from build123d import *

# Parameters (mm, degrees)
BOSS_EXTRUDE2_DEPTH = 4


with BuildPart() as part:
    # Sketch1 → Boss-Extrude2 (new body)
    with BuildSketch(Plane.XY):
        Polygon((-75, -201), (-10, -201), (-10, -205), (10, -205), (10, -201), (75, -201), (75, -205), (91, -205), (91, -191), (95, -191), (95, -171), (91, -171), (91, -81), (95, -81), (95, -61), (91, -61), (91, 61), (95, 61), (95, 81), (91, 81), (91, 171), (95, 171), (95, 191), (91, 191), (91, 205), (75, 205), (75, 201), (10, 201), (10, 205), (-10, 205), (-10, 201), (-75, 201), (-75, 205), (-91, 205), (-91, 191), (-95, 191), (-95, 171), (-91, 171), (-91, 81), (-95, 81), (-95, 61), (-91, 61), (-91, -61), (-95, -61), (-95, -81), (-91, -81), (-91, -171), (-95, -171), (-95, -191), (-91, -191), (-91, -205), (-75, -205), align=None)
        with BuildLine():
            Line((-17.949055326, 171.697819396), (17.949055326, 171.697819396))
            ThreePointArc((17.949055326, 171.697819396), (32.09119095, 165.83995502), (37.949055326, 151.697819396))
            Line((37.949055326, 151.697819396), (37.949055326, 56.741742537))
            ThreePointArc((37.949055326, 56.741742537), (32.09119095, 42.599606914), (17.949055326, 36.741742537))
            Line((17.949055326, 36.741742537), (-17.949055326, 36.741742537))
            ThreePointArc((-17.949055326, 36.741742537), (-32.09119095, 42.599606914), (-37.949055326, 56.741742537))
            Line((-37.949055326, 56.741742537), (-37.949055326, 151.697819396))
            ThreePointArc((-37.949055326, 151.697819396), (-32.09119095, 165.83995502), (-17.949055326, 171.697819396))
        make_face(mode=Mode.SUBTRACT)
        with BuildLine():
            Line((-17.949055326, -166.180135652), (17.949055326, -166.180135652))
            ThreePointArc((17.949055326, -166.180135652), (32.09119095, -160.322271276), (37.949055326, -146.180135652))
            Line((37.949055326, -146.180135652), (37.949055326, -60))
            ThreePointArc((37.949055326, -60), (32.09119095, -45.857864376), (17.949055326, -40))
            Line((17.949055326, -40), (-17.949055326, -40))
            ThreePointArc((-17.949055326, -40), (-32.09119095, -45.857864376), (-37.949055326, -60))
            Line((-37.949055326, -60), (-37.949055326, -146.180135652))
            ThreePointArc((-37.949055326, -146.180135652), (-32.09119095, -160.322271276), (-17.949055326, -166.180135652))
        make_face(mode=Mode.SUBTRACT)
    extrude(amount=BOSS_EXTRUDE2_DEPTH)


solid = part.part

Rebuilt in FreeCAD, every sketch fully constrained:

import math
import FreeCAD as App
import Part
import Sketcher
from FreeCAD import Vector


def add_polygon(sketch, points):
    """Adds a closed chain of lines whose ends are joined by coincident constraints."""
    first, n = sketch.GeometryCount, len(points)
    for a, b in zip(points, points[1:] + points[:1]):
        sketch.addGeometry(Part.LineSegment(App.Vector(*a, 0), App.Vector(*b, 0)), False)
    for i in range(n):
        sketch.addConstraint(Sketcher.Constraint("Coincident", first + i, 2, first + (i + 1) % n, 1))

doc = App.newDocument("Part")
body = doc.addObject("PartDesign::Body", "Body")

# Sketch on XY plane
sketch1 = body.newObject("Sketcher::SketchObject", "Sketch")
sketch1.AttachmentSupport = (doc.getObject("XY_Plane"), [""])
sketch1.MapMode = "FlatFace"
add_polygon(sketch1, [(-75, -201), (-10, -201), (-10, -205), (10, -205), (10, -201), (75, -201), (75, -205), (91, -205), (91, -191), (95, -191), (95, -171), (91, -171), (91, -81), (95, -81), (95, -61), (91, -61), (91, 61), (95, 61), (95, 81), (91, 81), (91, 171), (95, 171), (95, 191), (91, 191), (91, 205), (75, 205), (75, 201), (10, 201), (10, 205), (-10, 205), (-10, 201), (-75, 201), (-75, 205), (-91, 205), (-91, 191), (-95, 191), (-95, 171), (-91, 171), (-91, 81), (-95, 81), (-95, 61), (-91, 61), (-91, -61), (-95, -61), (-95, -81), (-91, -81), (-91, -171), (-95, -171), (-95, -191), (-91, -191), (-91, -205), (-75, -205)])  # lines 0-51
sketch1.addGeometry(Part.LineSegment(Vector(17.949055, -166.180136, 0), Vector(-17.949055, -166.180136, 0)), False)  # 52
sketch1.addGeometry(Part.ArcOfCircle(Part.Circle(Vector(-17.949055, -146.180136, 0), Vector(0, 0, 1), 20), math.radians(180), math.radians(270)), False)  # 53
sketch1.addGeometry(Part.LineSegment(Vector(-37.949055, -146.180136, 0), Vector(-37.949055, -60, 0)), False)  # 54
sketch1.addGeometry(Part.ArcOfCircle(Part.Circle(Vector(-17.949055, -60, 0), Vector(0, 0, 1), 20), math.radians(90), math.radians(180)), False)  # 55
sketch1.addGeometry(Part.LineSegment(Vector(-17.949055, -40, 0), Vector(17.949055, -40, 0)), False)  # 56
sketch1.addGeometry(Part.ArcOfCircle(Part.Circle(Vector(17.949055, -60, 0), Vector(0, 0, 1), 20), math.radians(0), math.radians(90)), False)  # 57
sketch1.addGeometry(Part.LineSegment(Vector(37.949055, -60, 0), Vector(37.949055, -146.180136, 0)), False)  # 58
sketch1.addGeometry(Part.ArcOfCircle(Part.Circle(Vector(17.949055, -146.180136, 0), Vector(0, 0, 1), 20), math.radians(-90), math.radians(0)), False)  # 59
sketch1.addGeometry(Part.ArcOfCircle(Part.Circle(Vector(-17.949055, 151.697819, 0), Vector(0, 0, 1), 20), math.radians(90), math.radians(180)), False)  # 60
sketch1.addGeometry(Part.LineSegment(Vector(-17.949055, 171.697819, 0), Vector(17.949055, 171.697819, 0)), False)  # 61
sketch1.addGeometry(Part.ArcOfCircle(Part.Circle(Vector(17.949055, 151.697819, 0), Vector(0, 0, 1), 20), math.radians(0), math.radians(90)), False)  # 62
sketch1.addGeometry(Part.LineSegment(Vector(37.949055, 151.697819, 0), Vector(37.949055, 56.741743, 0)), False)  # 63
sketch1.addGeometry(Part.ArcOfCircle(Part.Circle(Vector(17.949055, 56.741743, 0), Vector(0, 0, 1), 20), math.radians(-90), math.radians(0)), False)  # 64
sketch1.addGeometry(Part.LineSegment(Vector(17.949055, 36.741743, 0), Vector(-17.949055, 36.741743, 0)), False)  # 65
sketch1.addGeometry(Part.ArcOfCircle(Part.Circle(Vector(-17.949055, 56.741743, 0), Vector(0, 0, 1), 20), math.radians(-180), math.radians(-90)), False)  # 66
sketch1.addGeometry(Part.LineSegment(Vector(-37.949055, 56.741743, 0), Vector(-37.949055, 151.697819, 0)), False)  # 67
sketch1.addConstraint(Sketcher.Constraint("Tangent", 52, 2, 53, 2))
sketch1.addConstraint(Sketcher.Constraint("Tangent", 53, 1, 54, 1))
sketch1.addConstraint(Sketcher.Constraint("Tangent", 54, 2, 55, 2))
sketch1.addConstraint(Sketcher.Constraint("Tangent", 55, 1, 56, 1))
sketch1.addConstraint(Sketcher.Constraint("Tangent", 56, 2, 57, 2))
sketch1.addConstraint(Sketcher.Constraint("Tangent", 57, 1, 58, 1))
sketch1.addConstraint(Sketcher.Constraint("Tangent", 58, 2, 59, 2))
sketch1.addConstraint(Sketcher.Constraint("Tangent", 59, 1, 52, 1))
sketch1.addConstraint(Sketcher.Constraint("Tangent", 60, 1, 61, 1))
sketch1.addConstraint(Sketcher.Constraint("Tangent", 61, 2, 62, 2))
sketch1.addConstraint(Sketcher.Constraint("Tangent", 62, 1, 63, 1))
sketch1.addConstraint(Sketcher.Constraint("Tangent", 63, 2, 64, 2))
sketch1.addConstraint(Sketcher.Constraint("Tangent", 64, 1, 65, 1))
sketch1.addConstraint(Sketcher.Constraint("Tangent", 65, 2, 66, 2))
sketch1.addConstraint(Sketcher.Constraint("Tangent", 66, 1, 67, 1))
sketch1.addConstraint(Sketcher.Constraint("Tangent", 67, 2, 60, 2))
sketch1.addConstraint(Sketcher.Constraint("Horizontal", 0))
sketch1.addConstraint(Sketcher.Constraint("Vertical", 1))
sketch1.addConstraint(Sketcher.Constraint("Horizontal", 2))
sketch1.addConstraint(Sketcher.Constraint("Vertical", 3))
sketch1.addConstraint(Sketcher.Constraint("Horizontal", 4))
sketch1.addConstraint(Sketcher.Constraint("Vertical", 5))
sketch1.addConstraint(Sketcher.Constraint("Horizontal", 6))
sketch1.addConstraint(Sketcher.Constraint("Vertical", 7))
sketch1.addConstraint(Sketcher.Constraint("Horizontal", 8))
sketch1.addConstraint(Sketcher.Constraint("Vertical", 9))
sketch1.addConstraint(Sketcher.Constraint("Horizontal", 10))
sketch1.addConstraint(Sketcher.Constraint("Vertical", 11))
sketch1.addConstraint(Sketcher.Constraint("Horizontal", 12))
sketch1.addConstraint(Sketcher.Constraint("Vertical", 13))
sketch1.addConstraint(Sketcher.Constraint("Horizontal", 14))
sketch1.addConstraint(Sketcher.Constraint("Vertical", 15))
sketch1.addConstraint(Sketcher.Constraint("Horizontal", 16))
sketch1.addConstraint(Sketcher.Constraint("Vertical", 17))
sketch1.addConstraint(Sketcher.Constraint("Horizontal", 18))
sketch1.addConstraint(Sketcher.Constraint("Vertical", 19))
sketch1.addConstraint(Sketcher.Constraint("Horizontal", 20))
sketch1.addConstraint(Sketcher.Constraint("Vertical", 21))
sketch1.addConstraint(Sketcher.Constraint("Horizontal", 22))
sketch1.addConstraint(Sketcher.Constraint("Vertical", 23))
sketch1.addConstraint(Sketcher.Constraint("Horizontal", 24))
sketch1.addConstraint(Sketcher.Constraint("Vertical", 25))
sketch1.addConstraint(Sketcher.Constraint("Horizontal", 26))
sketch1.addConstraint(Sketcher.Constraint("Vertical", 27))
sketch1.addConstraint(Sketcher.Constraint("Horizontal", 28))
sketch1.addConstraint(Sketcher.Constraint("Vertical", 29))
sketch1.addConstraint(Sketcher.Constraint("Horizontal", 30))
sketch1.addConstraint(Sketcher.Constraint("Vertical", 31))
sketch1.addConstraint(Sketcher.Constraint("Horizontal", 32))
sketch1.addConstraint(Sketcher.Constraint("Vertical", 33))
sketch1.addConstraint(Sketcher.Constraint("Horizontal", 34))
sketch1.addConstraint(Sketcher.Constraint("Vertical", 35))
sketch1.addConstraint(Sketcher.Constraint("Horizontal", 36))
sketch1.addConstraint(Sketcher.Constraint("Vertical", 37))
sketch1.addConstraint(Sketcher.Constraint("Horizontal", 38))
sketch1.addConstraint(Sketcher.Constraint("Vertical", 39))
sketch1.addConstraint(Sketcher.Constraint("Horizontal", 40))
sketch1.addConstraint(Sketcher.Constraint("Vertical", 41))
sketch1.addConstraint(Sketcher.Constraint("Horizontal", 42))
sketch1.addConstraint(Sketcher.Constraint("Vertical", 43))
sketch1.addConstraint(Sketcher.Constraint("Horizontal", 44))
sketch1.addConstraint(Sketcher.Constraint("Vertical", 45))
sketch1.addConstraint(Sketcher.Constraint("Horizontal", 46))
sketch1.addConstraint(Sketcher.Constraint("Vertical", 47))
sketch1.addConstraint(Sketcher.Constraint("Horizontal", 48))
sketch1.addConstraint(Sketcher.Constraint("Vertical", 49))
sketch1.addConstraint(Sketcher.Constraint("Horizontal", 50))
sketch1.addConstraint(Sketcher.Constraint("Vertical", 51))
sketch1.addConstraint(Sketcher.Constraint("Horizontal", 52))
sketch1.addConstraint(Sketcher.Constraint("Vertical", 54))
sketch1.addConstraint(Sketcher.Constraint("Horizontal", 56))
sketch1.addConstraint(Sketcher.Constraint("Vertical", 58))
sketch1.addConstraint(Sketcher.Constraint("Horizontal", 61))
sketch1.addConstraint(Sketcher.Constraint("Vertical", 63))
sketch1.addConstraint(Sketcher.Constraint("Horizontal", 65))
sketch1.addConstraint(Sketcher.Constraint("Vertical", 67))
sketch1.addConstraint(Sketcher.Constraint("Equal", 53, 55))
sketch1.addConstraint(Sketcher.Constraint("Equal", 55, 57))
sketch1.addConstraint(Sketcher.Constraint("Equal", 57, 59))
sketch1.addConstraint(Sketcher.Constraint("Equal", 59, 60))
sketch1.addConstraint(Sketcher.Constraint("Equal", 60, 62))
sketch1.addConstraint(Sketcher.Constraint("Equal", 62, 64))
sketch1.addConstraint(Sketcher.Constraint("Equal", 64, 66))
sketch1.addConstraint(Sketcher.Constraint("Symmetric", 0, 2, 26, 2, -1, 1))
sketch1.addConstraint(Sketcher.Constraint("Symmetric", 2, 2, 28, 2, -1, 1))
sketch1.addConstraint(Sketcher.Constraint("Symmetric", 4, 2, 30, 2, -1, 1))
sketch1.addConstraint(Sketcher.Constraint("Symmetric", 6, 2, 32, 2, -1, 1))
sketch1.addConstraint(Sketcher.Constraint("Symmetric", 8, 2, 34, 2, -1, 1))
sketch1.addConstraint(Sketcher.Constraint("Symmetric", 10, 2, 36, 2, -1, 1))
sketch1.addConstraint(Sketcher.Constraint("Symmetric", 12, 2, 38, 2, -1, 1))
sketch1.addConstraint(Sketcher.Constraint("Symmetric", 14, 2, 40, 2, -1, 1))
sketch1.addConstraint(Sketcher.Constraint("Symmetric", 16, 2, 42, 2, -1, 1))
sketch1.addConstraint(Sketcher.Constraint("Symmetric", 18, 2, 44, 2, -1, 1))
sketch1.addConstraint(Sketcher.Constraint("Symmetric", 20, 2, 46, 2, -1, 1))
sketch1.addConstraint(Sketcher.Constraint("Symmetric", 22, 2, 48, 2, -1, 1))
sketch1.addConstraint(Sketcher.Constraint("Symmetric", 24, 2, 50, 2, -1, 1))
sketch1.addConstraint(Sketcher.Constraint("Symmetric", 0, 2, 3, 2, -2))
sketch1.addConstraint(Sketcher.Constraint("Symmetric", 24, 2, 31, 2, -2))
sketch1.addConstraint(Sketcher.Constraint("Symmetric", 22, 2, 33, 2, -2))
sketch1.addConstraint(Sketcher.Constraint("Symmetric", 20, 2, 35, 2, -2))
sketch1.addConstraint(Sketcher.Constraint("Symmetric", 18, 2, 37, 2, -2))
sketch1.addConstraint(Sketcher.Constraint("Symmetric", 16, 2, 39, 2, -2))
sketch1.addConstraint(Sketcher.Constraint("Horizontal", 2, 2, 5, 2))
sketch1.addConstraint(Sketcher.Constraint("Vertical", 55, 3, 60, 3))
sketch1.addConstraint(Sketcher.Constraint("Vertical", 59, 3, 62, 3))
sketch1.addConstraint(Sketcher.Constraint("Vertical", 7, 2, 10, 2))
sketch1.addConstraint(Sketcher.Constraint("Vertical", 9, 2, 12, 2))
sketch1.addConstraint(Sketcher.Constraint("Vertical", 11, 2, 14, 2))
sketch1.addConstraint(Sketcher.Constraint("Equal", 48, 1))
sketch1.addConstraint(Sketcher.Constraint("Equal", 28, 9))
sketch1.addConstraint(Sketcher.Constraint("Equal", 9, 13))
sketch1.addConstraint(Sketcher.Constraint("Radius", 53, 20.0))
sketch1.addConstraint(Sketcher.Constraint("DistanceX", 0, 1, 0, 2, 65.0))
sketch1.addConstraint(Sketcher.Constraint("DistanceX", 2, 1, 2, 2, 20.0))
sketch1.addConstraint(Sketcher.Constraint("DistanceX", 6, 1, 6, 2, 16.0))
sketch1.addConstraint(Sketcher.Constraint("DistanceX", 8, 1, 8, 2, 4.0))
sketch1.addConstraint(Sketcher.Constraint("DistanceY", 7, 1, 7, 2, 14.0))
sketch1.addConstraint(Sketcher.Constraint("DistanceY", 11, 1, 11, 2, 90.0))
sketch1.addConstraint(Sketcher.Constraint("DistanceY", 15, 1, 15, 2, 122.0))
sketch1.addConstraint(Sketcher.Constraint("DistanceY", 55, 3, -1, 1, 60.0))
sketch1.addConstraint(Sketcher.Constraint("DistanceX", 52, 2, 52, 1, 35.898111))
sketch1.addConstraint(Sketcher.Constraint("DistanceY", 54, 1, 54, 2, 86.180136))
sketch1.addConstraint(Sketcher.Constraint("DistanceY", 63, 2, 63, 1, 94.956077))
sketch1.addConstraint(Sketcher.Constraint("DistanceY", -1, 1, 60, 3, 151.697819))
sketch1.addConstraint(Sketcher.Constraint("DistanceX", 53, 3, -1, 1, 17.949055))
pad1 = body.newObject("PartDesign::Pad", "Pad")
pad1.Profile = sketch1
pad1.Length = 4

doc.recompute()
